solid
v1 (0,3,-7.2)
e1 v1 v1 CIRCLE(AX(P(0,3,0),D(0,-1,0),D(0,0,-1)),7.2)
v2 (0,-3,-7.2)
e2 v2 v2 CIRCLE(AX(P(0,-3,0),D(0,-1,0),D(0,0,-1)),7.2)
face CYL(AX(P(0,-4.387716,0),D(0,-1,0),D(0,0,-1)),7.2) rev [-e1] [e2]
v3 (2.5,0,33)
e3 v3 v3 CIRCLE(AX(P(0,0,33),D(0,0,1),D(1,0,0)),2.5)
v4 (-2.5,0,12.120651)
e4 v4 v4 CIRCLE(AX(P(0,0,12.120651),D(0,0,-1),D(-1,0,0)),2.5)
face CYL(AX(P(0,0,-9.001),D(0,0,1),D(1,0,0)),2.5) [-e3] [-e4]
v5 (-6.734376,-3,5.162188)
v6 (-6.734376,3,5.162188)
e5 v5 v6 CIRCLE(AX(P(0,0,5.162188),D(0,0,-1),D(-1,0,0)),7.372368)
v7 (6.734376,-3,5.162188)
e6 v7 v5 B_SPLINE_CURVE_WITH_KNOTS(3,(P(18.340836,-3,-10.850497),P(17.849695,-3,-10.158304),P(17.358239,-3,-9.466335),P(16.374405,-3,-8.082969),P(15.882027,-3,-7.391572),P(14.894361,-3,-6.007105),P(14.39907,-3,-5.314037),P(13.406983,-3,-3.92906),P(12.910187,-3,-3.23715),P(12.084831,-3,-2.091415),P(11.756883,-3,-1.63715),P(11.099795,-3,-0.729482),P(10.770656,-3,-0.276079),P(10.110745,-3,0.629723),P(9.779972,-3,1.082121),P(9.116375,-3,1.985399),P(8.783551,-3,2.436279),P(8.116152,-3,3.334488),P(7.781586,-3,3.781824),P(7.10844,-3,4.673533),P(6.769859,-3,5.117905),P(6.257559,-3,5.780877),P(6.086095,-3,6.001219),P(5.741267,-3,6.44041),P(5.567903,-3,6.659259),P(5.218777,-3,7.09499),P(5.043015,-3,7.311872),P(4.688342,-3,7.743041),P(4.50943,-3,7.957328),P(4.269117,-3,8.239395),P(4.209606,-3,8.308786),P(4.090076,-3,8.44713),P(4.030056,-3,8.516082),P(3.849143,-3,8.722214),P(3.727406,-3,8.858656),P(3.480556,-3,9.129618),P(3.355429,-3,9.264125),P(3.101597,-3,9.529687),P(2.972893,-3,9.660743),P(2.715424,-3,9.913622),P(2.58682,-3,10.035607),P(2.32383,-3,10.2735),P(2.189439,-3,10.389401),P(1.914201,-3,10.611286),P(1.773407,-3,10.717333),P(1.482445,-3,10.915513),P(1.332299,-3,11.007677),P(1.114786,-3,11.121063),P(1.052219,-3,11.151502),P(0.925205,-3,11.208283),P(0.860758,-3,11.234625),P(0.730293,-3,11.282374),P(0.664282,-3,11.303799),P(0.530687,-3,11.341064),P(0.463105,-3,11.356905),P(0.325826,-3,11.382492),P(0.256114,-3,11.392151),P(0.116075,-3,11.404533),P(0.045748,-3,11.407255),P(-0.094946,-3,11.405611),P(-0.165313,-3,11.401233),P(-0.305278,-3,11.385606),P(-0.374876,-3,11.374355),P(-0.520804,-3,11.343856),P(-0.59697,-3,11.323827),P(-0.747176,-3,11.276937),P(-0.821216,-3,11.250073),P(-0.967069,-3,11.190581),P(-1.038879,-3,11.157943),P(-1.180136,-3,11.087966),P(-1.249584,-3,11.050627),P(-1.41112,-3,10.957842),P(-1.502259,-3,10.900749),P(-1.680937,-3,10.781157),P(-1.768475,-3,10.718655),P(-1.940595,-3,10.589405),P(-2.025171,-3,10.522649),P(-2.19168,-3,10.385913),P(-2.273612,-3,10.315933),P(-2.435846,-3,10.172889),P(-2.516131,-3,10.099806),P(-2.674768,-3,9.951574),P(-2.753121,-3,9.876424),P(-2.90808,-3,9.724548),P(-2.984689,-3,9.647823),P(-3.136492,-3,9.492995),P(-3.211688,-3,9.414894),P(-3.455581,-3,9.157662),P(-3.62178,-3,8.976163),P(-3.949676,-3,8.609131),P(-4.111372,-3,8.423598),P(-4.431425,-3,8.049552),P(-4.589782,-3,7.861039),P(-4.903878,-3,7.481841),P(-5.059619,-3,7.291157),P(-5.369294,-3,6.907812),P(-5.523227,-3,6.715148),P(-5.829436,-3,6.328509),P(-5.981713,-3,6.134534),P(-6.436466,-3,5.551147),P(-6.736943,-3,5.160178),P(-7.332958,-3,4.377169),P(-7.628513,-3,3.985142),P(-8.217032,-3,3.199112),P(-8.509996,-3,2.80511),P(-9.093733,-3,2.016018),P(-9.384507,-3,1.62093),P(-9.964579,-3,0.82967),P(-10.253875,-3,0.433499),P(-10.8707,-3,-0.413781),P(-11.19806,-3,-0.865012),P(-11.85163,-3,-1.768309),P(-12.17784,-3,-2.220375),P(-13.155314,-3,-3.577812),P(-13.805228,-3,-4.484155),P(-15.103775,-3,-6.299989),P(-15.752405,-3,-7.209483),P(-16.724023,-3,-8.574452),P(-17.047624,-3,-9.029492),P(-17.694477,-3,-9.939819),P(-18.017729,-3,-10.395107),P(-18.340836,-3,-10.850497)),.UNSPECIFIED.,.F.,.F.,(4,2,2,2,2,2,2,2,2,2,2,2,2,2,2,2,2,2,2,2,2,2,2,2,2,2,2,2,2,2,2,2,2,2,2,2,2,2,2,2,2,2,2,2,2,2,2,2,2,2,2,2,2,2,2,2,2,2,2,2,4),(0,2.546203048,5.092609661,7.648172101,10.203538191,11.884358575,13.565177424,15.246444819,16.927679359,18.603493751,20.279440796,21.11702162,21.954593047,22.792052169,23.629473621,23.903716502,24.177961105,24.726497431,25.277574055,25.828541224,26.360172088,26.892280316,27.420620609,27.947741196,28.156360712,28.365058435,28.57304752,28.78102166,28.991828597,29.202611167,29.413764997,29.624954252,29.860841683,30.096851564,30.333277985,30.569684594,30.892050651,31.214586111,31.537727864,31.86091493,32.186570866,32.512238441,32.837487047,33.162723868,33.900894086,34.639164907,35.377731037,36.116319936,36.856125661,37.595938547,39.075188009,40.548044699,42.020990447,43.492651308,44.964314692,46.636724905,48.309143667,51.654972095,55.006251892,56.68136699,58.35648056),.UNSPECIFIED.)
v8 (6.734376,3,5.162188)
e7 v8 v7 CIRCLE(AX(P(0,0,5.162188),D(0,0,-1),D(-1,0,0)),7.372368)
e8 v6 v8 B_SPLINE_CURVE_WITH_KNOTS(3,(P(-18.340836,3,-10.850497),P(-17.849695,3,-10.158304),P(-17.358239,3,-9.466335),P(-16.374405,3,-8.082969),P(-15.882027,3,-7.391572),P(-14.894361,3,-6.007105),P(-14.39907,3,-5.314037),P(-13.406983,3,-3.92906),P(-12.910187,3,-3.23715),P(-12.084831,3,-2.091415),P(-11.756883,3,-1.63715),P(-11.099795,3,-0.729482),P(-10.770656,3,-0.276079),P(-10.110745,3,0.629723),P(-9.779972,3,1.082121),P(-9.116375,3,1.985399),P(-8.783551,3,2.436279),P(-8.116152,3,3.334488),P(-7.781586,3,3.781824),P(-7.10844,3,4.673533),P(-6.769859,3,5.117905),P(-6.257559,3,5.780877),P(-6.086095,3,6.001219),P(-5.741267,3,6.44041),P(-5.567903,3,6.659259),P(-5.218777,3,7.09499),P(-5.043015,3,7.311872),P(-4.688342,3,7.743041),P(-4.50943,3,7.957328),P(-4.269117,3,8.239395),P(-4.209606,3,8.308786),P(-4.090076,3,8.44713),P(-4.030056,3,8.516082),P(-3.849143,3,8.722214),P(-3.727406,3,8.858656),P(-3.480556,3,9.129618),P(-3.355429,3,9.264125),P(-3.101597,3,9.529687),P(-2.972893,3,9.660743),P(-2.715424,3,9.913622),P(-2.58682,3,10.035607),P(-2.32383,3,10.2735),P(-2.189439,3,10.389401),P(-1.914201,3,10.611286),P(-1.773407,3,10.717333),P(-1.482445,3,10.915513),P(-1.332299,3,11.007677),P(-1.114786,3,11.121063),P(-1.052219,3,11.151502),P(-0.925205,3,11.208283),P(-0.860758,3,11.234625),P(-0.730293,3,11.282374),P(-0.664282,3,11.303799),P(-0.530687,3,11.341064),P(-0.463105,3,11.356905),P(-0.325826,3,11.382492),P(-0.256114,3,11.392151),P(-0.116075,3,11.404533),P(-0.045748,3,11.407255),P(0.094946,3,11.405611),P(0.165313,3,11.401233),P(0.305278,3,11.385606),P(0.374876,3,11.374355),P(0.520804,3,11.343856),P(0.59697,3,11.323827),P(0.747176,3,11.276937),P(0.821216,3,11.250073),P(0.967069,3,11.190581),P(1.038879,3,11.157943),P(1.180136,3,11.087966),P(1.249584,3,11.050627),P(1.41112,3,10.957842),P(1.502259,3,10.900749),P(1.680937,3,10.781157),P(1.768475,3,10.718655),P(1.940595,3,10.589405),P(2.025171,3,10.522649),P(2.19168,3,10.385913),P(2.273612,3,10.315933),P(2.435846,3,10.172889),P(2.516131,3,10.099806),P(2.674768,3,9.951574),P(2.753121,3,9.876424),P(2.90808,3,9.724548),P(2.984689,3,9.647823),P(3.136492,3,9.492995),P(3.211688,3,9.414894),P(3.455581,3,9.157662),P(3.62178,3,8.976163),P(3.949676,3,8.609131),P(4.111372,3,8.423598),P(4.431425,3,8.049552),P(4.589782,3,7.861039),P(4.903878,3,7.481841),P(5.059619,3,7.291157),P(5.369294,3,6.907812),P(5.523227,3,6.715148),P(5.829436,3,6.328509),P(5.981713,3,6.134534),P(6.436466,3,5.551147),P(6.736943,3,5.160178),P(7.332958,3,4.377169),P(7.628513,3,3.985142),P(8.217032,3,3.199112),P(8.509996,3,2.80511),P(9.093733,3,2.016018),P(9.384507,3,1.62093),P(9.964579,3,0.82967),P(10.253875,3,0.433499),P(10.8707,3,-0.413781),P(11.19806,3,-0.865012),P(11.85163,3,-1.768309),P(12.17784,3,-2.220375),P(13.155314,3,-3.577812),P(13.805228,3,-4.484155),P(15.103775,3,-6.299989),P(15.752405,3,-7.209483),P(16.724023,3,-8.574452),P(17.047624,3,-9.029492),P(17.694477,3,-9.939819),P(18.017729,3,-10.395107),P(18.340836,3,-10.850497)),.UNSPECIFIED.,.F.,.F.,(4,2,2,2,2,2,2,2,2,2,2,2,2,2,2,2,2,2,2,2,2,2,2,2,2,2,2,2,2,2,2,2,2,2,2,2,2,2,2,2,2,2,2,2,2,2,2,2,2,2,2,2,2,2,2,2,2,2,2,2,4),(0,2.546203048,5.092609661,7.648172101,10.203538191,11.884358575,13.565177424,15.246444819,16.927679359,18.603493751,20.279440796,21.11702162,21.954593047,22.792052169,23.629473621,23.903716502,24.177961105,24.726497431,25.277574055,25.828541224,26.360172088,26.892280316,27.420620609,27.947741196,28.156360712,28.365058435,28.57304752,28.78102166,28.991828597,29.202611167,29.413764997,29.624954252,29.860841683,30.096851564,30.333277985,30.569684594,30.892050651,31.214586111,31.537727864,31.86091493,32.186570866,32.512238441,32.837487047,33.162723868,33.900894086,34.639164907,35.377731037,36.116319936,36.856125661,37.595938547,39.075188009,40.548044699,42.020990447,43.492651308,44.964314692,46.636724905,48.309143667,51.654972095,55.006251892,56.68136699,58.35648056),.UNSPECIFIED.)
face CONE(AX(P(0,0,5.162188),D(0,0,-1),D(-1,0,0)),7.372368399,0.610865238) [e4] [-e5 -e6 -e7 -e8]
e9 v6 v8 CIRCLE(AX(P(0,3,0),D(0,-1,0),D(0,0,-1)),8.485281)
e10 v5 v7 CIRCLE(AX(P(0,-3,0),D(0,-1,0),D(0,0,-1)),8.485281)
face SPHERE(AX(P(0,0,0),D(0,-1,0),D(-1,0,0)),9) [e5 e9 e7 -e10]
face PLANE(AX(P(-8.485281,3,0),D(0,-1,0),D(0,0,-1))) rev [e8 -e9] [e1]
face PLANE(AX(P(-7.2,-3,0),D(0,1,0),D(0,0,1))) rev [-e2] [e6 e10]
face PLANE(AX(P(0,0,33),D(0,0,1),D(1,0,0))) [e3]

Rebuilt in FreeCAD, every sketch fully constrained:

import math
import FreeCAD as App
import Part
import Sketcher

V = App.Vector
Q = App.Units.Quantity


def add_polygon(sketch, points):
    """Adds a closed chain of lines whose ends are joined by coincident constraints."""
    first, n = sketch.GeometryCount, len(points)
    for a, b in zip(points, points[1:] + points[:1]):
        sketch.addGeometry(Part.LineSegment(App.Vector(*a, 0), App.Vector(*b, 0)), False)
    for i in range(n):
        sketch.addConstraint(Sketcher.Constraint("Coincident", first + i, 2, first + (i + 1) % n, 1))

doc = App.newDocument("Part")
params = doc.addObject("Spreadsheet::Sheet", "Params")
for row, (alias, value) in enumerate([
    ("sketch1_radius", "9 mm"),
    ("sketch1_height", "6 mm"),
    ("revolution_angle", "360 deg"),
    ("sketch2_diameter", "5 mm"),
    ("sketch3_radius", "9 mm"),
    ("sketch3_radius2", "7.8 mm"),
    ("revolution2_angle", "360 deg"),
    ("sketch4_width", "10 mm"),
    ("sketch4_height", "12 mm"),
], start=1):
    params.set(f"A{row}", alias)
    params.set(f"B{row}", "=" + value)
    params.setAlias(f"B{row}", alias)

body = doc.addObject("PartDesign::Body", "Body")

# Sketch on XY plane
sketch1 = body.newObject("Sketcher::SketchObject", "Sketch")
sketch1.AttachmentSupport = (doc.getObject("XY_Plane"), [""])
sketch1.MapMode = "FlatFace"
sketch1.addGeometry(Part.LineSegment(V(-7.2, 3, 0), V(-8.485281, 3, 0)), False)
sketch1.addGeometry(Part.ArcOfCircle(Part.Circle(V(0, 0, 0), V(0, 0, 1), 9), math.radians(160.528779), math.radians(199.471221)), False)
sketch1.addGeometry(Part.LineSegment(V(-8.485281, -3, 0), V(-7.2, -3, 0)), False)
sketch1.addGeometry(Part.LineSegment(V(-7.2, -3, 0), V(-7.2, 3, 0)), False)
sketch1.addConstraint(Sketcher.Constraint("Coincident", 0, 2, 1, 1))
sketch1.addConstraint(Sketcher.Constraint("Coincident", 1, 2, 2, 1))
sketch1.addConstraint(Sketcher.Constraint("Coincident", 2, 2, 3, 1))
sketch1.addConstraint(Sketcher.Constraint("Coincident", 3, 2, 0, 1))
sketch1.addConstraint(Sketcher.Constraint("Horizontal", 0))
sketch1.addConstraint(Sketcher.Constraint("Horizontal", 2))
sketch1.addConstraint(Sketcher.Constraint("Vertical", 3))
sketch1.addConstraint(Sketcher.Constraint("Coincident", 1, 3, -1, 1))
sketch1.addConstraint(Sketcher.Constraint("Vertical", 0, 2, 1, 2))
sketch1.addConstraint(Sketcher.Constraint("Radius", 1, 9.0))
sketch1.addConstraint(Sketcher.Constraint("DistanceY", 3, 1, 3, 2, 6.0))
sketch1.addConstraint(Sketcher.Constraint("DistanceX", 2, 2, -1, 1, 7.2))
sketch1.setExpression("Constraints[9]", "Params.sketch1_radius")
sketch1.setExpression("Constraints[10]", "Params.sketch1_height")
revolution = body.newObject("PartDesign::Revolution", "Revolution")
revolution.Profile = sketch1
revolution.ReferenceAxis = (sketch1, ["V_Axis"])
revolution.setExpression("Angle", "Params.revolution_angle")

# Sketch on XY plane
sketch2 = body.newObject("Sketcher::SketchObject", "Sketch001")
sketch2.AttachmentSupport = (doc.getObject("XY_Plane"), [""])
sketch2.MapMode = "FlatFace"
sketch2.AttachmentOffset = App.Placement(V(0, 0, 33), App.Rotation())
sketch2.addGeometry(Part.Circle(V(0, 0, 0), V(0, 0, 1), 2.5), False)
sketch2.addConstraint(Sketcher.Constraint("Coincident", 0, 3, -1, 1))
sketch2.addConstraint(Sketcher.Constraint("Diameter", 0, 5.0))
sketch2.setExpression("Constraints[1]", "Params.sketch2_diameter")
pad1 = body.newObject("PartDesign::Pad", "Pad")
pad1.Profile = sketch2
pad1.Type = "UpToFirst"
pad1.Reversed = True

# Sketch on XZ plane
sketch3 = body.newObject("Sketcher::SketchObject", "Sketch002")
sketch3.AttachmentSupport = (doc.getObject("XZ_Plane"), [""])
sketch3.MapMode = "FlatFace"
sketch3.addGeometry(Part.LineSegment(V(0, 15.691021, 0), V(0, 7.8, 0)), False)
sketch3.addGeometry(Part.ArcOfCircle(Part.Circle(V(0, 0, 0), V(0, 0, 1), 7.8), math.radians(90), math.radians(180)), False)
sketch3.addGeometry(Part.LineSegment(V(-7.8, 0, 0), V(-9, 0, 0)), False)
sketch3.addGeometry(Part.ArcOfCircle(Part.Circle(V(0, 0, 0), V(0, 0, 1), 9), math.radians(145), math.radians(180)), False)
sketch3.addGeometry(Part.LineSegment(V(-7.372368, 5.162188, 0), V(0, 15.691021, 0)), False)
sketch3.addConstraint(Sketcher.Constraint("Coincident", 0, 2, 1, 1))
sketch3.addConstraint(Sketcher.Constraint("Coincident", 1, 2, 2, 1))
sketch3.addConstraint(Sketcher.Constraint("Coincident", 2, 2, 3, 2))
sketch3.addConstraint(Sketcher.Constraint("Tangent", 3, 1, 4, 1))
sketch3.addConstraint(Sketcher.Constraint("Coincident", 4, 2, 0, 1))
sketch3.addConstraint(Sketcher.Constraint("Vertical", 0))
sketch3.addConstraint(Sketcher.Constraint("Horizontal", 2))
sketch3.addConstraint(Sketcher.Constraint("Coincident", 1, 3, -1, 1))
sketch3.addConstraint(Sketcher.Constraint("Coincident", 3, 3, -1, 1))
sketch3.addConstraint(Sketcher.Constraint("PointOnObject", 0, 2, -2))
sketch3.addConstraint(Sketcher.Constraint("PointOnObject", 1, 2, -1))
sketch3.addConstraint(Sketcher.Constraint("Radius", 3, 9.0))
sketch3.addConstraint(Sketcher.Constraint("Radius", 1, 7.8))
sketch3.addConstraint(Sketcher.Constraint("Angle", 4, Q("55 deg")))
sketch3.setExpression("Constraints[11]", "Params.sketch3_radius")
sketch3.setExpression("Constraints[12]", "Params.sketch3_radius2")
revolution2 = body.newObject("PartDesign::Revolution", "Revolution001")
revolution2.Profile = sketch3
revolution2.ReferenceAxis = (sketch3, ["V_Axis"])
revolution2.setExpression("Angle", "Params.revolution2_angle")

# Sketch on YZ plane
sketch4 = body.newObject("Sketcher::SketchObject", "Sketch003")
sketch4.AttachmentSupport = (doc.getObject("YZ_Plane"), [""])
sketch4.MapMode = "FlatFace"
add_polygon(sketch4, [(3, 0), (3, 11.406577), (2.5, 12.120651), (3, 12), (13, 12), (13, 0)])  # lines 0-5
add_polygon(sketch4, [(-3, 11.406577), (-3, 0), (-13, 0), (-13, 12), (-3, 12), (-2.5, 12.120651)])  # lines 6-11
sketch4.addConstraint(Sketcher.Constraint("Vertical", 0))
sketch4.addConstraint(Sketcher.Constraint("Horizontal", 3))
sketch4.addConstraint(Sketcher.Constraint("Vertical", 4))
sketch4.addConstraint(Sketcher.Constraint("Horizontal", 5))
sketch4.addConstraint(Sketcher.Constraint("Vertical", 6))
sketch4.addConstraint(Sketcher.Constraint("Horizontal", 7))
sketch4.addConstraint(Sketcher.Constraint("Vertical", 8))
sketch4.addConstraint(Sketcher.Constraint("Horizontal", 9))
sketch4.addConstraint(Sketcher.Constraint("Symmetric", 5, 2, 6, 2, -1, 1))
sketch4.addConstraint(Sketcher.Constraint("Symmetric", 4, 2, 7, 2, -2))
sketch4.addConstraint(Sketcher.Constraint("Symmetric", 2, 2, 9, 2, -2))
sketch4.addConstraint(Sketcher.Constraint("Symmetric", 1, 2, 10, 2, -2))
sketch4.addConstraint(Sketcher.Constraint("Horizontal", 0, 2, 11, 2))
sketch4.addConstraint(Sketcher.Constraint("Vertical", 0, 2, 2, 2))
sketch4.addConstraint(Sketcher.Constraint("DistanceX", 3, 1, 3, 2, 10.0))
sketch4.addConstraint(Sketcher.Constraint("DistanceY", 4, 2, 4, 1, 12.0))
sketch4.addConstraint(Sketcher.Constraint("Angle", 1, Q("125 deg")))
sketch4.addConstraint(Sketcher.Constraint("DistanceX", -1, 1, 0, 2, 3.0))
sketch4.addConstraint(Sketcher.Constraint("DistanceX", 10, 2, 1, 2, 5.0))
sketch4.addConstraint(Sketcher.Constraint("Distance", 2, 0.514351))
sketch4.setExpression("Constraints[26]", "Params.sketch4_width")
sketch4.setExpression("Constraints[27]", "Params.sketch4_height")
pocket1 = body.newObject("PartDesign::Pocket", "Pocket")
pocket1.Profile = sketch4
pocket1.Type = "ThroughAll"
pocket1.Midplane = True

doc.recompute()
